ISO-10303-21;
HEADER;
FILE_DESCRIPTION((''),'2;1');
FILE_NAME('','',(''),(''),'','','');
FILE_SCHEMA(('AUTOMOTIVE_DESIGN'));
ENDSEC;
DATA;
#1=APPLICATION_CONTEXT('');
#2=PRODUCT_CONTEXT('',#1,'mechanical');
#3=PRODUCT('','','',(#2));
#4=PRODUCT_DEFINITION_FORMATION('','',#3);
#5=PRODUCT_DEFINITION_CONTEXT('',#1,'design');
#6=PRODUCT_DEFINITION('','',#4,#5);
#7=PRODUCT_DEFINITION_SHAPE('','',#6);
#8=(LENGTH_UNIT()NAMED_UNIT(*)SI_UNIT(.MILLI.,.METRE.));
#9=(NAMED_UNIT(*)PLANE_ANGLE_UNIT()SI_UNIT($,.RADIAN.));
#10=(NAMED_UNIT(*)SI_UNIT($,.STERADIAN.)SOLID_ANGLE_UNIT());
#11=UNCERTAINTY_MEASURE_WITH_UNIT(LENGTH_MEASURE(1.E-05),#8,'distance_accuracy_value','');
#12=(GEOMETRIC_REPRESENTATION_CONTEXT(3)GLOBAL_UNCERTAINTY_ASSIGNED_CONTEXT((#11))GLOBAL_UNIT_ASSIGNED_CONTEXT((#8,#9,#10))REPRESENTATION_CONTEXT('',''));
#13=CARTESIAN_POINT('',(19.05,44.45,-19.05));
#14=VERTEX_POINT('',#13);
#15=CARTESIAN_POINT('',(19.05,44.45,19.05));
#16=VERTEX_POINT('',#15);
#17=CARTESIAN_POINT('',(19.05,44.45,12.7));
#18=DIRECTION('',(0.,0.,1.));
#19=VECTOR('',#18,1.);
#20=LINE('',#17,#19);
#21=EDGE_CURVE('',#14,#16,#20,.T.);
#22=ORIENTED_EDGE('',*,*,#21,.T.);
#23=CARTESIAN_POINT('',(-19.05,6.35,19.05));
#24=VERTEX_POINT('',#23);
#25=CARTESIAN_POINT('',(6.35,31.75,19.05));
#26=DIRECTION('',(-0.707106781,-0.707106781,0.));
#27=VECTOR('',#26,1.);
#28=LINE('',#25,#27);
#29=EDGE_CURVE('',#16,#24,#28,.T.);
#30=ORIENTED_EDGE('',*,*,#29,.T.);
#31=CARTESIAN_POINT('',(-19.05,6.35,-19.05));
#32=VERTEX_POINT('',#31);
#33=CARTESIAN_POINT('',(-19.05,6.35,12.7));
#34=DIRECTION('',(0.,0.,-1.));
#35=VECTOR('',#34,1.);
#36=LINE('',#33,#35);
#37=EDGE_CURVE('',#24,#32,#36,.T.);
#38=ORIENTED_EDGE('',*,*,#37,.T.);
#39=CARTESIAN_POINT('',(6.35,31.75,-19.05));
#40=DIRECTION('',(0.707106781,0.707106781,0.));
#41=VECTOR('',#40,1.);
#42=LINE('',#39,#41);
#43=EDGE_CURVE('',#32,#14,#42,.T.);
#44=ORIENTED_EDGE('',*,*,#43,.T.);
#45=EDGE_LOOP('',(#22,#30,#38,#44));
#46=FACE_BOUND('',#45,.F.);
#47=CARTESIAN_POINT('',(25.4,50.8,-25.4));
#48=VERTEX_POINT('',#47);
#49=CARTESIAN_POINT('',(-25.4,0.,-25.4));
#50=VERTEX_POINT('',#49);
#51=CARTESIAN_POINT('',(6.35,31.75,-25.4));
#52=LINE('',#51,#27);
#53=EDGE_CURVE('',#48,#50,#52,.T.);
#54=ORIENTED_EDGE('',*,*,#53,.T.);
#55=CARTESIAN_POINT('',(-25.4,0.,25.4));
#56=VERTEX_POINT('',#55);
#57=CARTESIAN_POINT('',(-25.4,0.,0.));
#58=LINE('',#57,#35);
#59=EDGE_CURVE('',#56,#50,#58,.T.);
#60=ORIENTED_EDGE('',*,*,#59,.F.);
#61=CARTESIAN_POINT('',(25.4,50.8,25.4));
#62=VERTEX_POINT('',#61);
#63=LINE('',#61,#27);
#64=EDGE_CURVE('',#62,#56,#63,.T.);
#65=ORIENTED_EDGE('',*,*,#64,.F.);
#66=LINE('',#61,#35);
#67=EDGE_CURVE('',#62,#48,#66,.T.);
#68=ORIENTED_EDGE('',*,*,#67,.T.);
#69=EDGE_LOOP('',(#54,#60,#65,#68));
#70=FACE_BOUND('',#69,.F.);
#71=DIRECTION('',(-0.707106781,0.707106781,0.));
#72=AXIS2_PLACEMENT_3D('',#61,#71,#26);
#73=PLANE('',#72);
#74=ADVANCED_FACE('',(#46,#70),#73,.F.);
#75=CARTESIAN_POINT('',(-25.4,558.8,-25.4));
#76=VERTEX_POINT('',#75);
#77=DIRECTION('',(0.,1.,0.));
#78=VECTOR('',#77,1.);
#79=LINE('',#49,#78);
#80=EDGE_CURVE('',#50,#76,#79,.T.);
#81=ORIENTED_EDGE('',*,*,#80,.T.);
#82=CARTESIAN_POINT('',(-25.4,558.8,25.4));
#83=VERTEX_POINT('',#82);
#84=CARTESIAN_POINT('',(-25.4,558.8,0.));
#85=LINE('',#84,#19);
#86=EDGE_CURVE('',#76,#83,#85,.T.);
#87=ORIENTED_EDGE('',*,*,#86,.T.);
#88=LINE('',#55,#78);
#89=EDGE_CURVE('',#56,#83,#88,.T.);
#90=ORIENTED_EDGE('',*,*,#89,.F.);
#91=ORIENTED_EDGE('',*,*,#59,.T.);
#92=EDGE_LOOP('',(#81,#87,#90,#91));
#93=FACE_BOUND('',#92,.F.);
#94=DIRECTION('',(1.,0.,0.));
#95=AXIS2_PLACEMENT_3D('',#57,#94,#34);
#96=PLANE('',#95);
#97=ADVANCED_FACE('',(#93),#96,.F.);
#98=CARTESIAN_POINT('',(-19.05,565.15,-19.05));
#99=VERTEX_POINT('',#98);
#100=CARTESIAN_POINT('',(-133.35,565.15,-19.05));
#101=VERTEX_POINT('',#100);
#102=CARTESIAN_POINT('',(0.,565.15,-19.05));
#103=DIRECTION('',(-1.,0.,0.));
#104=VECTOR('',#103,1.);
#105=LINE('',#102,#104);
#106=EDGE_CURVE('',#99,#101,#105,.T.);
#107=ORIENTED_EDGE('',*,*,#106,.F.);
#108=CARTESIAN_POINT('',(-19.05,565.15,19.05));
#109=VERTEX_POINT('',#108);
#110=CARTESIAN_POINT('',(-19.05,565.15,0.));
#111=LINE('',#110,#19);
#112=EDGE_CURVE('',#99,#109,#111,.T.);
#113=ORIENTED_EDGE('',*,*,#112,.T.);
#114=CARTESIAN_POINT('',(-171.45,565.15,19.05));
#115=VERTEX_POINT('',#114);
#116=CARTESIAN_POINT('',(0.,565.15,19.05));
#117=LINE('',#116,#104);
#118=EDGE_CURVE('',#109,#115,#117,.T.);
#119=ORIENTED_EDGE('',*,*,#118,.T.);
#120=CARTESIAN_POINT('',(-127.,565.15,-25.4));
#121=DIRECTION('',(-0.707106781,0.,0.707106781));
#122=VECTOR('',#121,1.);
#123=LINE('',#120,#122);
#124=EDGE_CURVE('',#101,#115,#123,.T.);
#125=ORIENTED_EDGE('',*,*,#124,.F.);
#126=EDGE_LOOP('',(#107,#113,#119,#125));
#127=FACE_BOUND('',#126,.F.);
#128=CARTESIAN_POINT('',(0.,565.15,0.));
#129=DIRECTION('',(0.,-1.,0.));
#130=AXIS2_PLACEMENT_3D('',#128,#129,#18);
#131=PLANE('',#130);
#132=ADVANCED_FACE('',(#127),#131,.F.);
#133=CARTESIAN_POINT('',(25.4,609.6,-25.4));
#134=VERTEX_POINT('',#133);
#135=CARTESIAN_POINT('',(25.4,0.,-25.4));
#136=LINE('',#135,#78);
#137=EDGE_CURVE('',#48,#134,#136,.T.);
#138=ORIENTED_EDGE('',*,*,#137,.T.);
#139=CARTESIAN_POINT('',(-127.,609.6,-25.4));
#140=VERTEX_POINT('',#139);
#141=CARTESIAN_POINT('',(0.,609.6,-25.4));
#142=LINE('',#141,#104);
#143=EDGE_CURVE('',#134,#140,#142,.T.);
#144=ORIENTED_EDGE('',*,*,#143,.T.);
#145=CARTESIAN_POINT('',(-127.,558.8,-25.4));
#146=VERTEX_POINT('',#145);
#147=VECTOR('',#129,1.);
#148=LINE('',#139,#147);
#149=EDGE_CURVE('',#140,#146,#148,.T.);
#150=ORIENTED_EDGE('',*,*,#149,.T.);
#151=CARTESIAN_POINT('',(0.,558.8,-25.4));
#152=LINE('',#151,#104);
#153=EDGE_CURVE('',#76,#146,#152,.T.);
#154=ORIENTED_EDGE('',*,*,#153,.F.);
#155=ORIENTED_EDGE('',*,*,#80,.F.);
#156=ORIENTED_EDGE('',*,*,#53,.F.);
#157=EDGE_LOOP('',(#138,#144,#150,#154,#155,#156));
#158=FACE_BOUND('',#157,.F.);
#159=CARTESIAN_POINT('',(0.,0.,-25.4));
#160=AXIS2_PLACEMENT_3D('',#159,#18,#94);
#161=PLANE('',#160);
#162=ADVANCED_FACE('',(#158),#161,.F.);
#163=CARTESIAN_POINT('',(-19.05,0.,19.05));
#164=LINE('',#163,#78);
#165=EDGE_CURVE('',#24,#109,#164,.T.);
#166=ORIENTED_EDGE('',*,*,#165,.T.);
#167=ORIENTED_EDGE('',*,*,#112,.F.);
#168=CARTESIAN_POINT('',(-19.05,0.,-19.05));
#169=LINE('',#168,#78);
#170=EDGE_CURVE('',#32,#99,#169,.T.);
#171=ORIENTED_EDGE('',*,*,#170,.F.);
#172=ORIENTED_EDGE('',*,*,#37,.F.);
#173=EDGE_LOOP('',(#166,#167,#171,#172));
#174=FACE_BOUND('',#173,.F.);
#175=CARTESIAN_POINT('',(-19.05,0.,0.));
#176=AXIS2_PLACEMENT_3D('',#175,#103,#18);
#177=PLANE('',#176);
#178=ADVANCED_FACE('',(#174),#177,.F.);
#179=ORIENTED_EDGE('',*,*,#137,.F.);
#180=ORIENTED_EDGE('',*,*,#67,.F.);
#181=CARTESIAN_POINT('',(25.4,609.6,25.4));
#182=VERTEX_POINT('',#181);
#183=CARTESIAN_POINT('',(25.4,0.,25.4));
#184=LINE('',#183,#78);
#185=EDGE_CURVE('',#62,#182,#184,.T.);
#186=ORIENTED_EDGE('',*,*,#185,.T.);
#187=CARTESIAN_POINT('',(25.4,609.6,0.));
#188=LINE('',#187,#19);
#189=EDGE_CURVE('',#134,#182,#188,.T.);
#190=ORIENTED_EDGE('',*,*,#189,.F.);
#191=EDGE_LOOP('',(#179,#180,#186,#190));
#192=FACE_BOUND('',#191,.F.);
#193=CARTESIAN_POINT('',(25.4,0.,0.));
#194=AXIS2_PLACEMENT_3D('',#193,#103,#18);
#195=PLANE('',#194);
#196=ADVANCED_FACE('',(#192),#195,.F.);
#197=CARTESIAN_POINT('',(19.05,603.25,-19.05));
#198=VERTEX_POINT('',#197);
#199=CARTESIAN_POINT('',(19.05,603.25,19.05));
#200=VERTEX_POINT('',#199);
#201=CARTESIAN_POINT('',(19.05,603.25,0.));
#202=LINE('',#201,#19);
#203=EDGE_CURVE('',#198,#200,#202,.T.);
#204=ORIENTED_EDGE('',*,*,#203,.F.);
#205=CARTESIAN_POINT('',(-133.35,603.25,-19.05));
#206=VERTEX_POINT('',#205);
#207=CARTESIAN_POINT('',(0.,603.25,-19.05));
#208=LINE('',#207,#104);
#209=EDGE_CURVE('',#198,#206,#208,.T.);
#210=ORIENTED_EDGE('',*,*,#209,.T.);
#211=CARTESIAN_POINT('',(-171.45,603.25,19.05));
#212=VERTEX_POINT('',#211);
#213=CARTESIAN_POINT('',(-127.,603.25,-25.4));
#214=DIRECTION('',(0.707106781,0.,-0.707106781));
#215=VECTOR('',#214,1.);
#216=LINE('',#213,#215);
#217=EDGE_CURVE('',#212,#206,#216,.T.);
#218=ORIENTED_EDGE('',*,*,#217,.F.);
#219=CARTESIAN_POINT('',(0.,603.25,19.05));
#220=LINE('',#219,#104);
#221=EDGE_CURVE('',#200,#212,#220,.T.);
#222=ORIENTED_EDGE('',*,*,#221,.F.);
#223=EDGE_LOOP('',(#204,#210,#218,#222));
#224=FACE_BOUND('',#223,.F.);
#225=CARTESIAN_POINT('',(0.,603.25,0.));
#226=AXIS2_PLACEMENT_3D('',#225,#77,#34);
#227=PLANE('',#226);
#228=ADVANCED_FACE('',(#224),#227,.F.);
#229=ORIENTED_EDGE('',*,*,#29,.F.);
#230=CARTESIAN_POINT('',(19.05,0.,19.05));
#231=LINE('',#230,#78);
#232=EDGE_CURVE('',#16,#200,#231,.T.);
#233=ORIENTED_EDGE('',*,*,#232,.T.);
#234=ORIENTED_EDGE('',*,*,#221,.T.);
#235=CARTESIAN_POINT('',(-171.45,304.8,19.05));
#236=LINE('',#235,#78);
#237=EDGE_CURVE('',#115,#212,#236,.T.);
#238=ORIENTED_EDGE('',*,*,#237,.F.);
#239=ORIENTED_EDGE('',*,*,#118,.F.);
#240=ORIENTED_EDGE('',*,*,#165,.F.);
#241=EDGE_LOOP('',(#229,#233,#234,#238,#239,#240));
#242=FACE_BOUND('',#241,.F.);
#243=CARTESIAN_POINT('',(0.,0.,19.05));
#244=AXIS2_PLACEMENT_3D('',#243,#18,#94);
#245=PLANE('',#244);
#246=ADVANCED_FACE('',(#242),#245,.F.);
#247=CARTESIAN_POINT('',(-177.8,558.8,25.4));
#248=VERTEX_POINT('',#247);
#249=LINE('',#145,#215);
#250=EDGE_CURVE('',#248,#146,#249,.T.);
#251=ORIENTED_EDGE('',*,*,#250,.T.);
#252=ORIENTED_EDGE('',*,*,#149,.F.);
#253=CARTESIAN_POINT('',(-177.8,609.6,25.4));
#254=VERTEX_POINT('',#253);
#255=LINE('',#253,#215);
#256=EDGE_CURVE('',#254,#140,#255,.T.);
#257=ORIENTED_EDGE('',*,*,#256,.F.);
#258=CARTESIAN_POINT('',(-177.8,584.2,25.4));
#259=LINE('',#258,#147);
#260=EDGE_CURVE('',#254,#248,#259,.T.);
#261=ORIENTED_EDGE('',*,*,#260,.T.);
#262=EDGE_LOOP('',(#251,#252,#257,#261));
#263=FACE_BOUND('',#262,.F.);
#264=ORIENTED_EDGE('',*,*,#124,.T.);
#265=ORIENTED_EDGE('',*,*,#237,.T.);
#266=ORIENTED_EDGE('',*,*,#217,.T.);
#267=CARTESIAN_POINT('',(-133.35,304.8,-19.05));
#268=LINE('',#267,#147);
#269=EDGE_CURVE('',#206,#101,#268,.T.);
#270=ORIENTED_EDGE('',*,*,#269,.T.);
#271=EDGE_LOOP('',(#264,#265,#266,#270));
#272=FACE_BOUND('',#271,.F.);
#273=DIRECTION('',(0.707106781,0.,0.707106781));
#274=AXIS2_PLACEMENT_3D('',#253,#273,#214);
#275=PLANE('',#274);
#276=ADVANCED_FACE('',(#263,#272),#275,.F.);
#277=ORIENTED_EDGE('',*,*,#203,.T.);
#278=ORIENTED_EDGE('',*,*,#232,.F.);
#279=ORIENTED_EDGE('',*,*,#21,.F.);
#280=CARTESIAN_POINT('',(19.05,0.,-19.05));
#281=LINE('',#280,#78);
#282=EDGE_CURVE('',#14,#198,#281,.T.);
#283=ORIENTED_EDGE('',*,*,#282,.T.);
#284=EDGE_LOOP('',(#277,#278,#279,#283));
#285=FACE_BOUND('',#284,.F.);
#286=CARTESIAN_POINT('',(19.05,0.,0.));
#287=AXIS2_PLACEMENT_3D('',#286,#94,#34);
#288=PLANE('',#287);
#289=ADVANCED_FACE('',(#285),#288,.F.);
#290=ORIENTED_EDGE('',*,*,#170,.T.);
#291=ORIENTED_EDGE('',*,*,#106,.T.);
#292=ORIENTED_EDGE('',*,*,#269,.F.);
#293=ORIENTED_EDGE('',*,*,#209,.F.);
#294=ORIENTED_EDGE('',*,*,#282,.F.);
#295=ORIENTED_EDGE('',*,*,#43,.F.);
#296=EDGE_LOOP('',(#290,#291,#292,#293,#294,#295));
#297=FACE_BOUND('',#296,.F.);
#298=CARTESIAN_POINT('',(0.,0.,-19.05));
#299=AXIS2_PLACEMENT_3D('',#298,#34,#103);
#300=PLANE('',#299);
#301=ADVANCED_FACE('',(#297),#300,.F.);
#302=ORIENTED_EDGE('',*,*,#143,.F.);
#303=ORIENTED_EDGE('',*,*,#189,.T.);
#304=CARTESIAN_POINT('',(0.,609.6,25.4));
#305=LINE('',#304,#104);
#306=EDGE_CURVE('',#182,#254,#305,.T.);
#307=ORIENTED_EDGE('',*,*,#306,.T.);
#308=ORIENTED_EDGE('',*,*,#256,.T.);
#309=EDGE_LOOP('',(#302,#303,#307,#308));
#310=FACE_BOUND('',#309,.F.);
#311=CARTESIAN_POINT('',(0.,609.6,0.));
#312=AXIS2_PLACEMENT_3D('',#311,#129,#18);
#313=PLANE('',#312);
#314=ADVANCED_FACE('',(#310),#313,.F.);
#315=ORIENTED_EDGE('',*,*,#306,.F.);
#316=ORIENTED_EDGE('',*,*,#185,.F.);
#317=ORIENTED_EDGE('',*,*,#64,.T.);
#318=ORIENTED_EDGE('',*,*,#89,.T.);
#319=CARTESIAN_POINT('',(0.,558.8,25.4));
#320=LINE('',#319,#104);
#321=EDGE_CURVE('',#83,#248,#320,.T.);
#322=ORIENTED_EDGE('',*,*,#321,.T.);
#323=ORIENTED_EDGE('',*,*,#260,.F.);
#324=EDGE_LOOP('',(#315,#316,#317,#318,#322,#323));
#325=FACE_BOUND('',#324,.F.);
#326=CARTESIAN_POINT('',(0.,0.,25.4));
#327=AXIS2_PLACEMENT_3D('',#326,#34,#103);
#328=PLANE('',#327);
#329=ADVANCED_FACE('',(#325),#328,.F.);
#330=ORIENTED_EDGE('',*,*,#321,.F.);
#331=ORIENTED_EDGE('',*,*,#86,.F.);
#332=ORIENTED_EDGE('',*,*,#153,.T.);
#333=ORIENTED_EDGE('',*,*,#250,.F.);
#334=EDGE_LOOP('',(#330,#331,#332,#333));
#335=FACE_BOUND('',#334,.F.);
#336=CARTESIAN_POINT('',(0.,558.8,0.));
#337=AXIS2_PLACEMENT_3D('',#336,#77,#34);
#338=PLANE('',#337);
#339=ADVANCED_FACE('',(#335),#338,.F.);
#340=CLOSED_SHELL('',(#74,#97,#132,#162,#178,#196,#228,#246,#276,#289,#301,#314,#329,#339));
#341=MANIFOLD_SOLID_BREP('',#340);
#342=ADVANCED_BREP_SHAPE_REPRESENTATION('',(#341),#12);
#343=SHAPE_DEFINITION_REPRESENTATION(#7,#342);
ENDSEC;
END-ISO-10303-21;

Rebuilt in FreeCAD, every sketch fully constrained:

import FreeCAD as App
import Part
import Sketcher
from FreeCAD import Vector
Q = App.Units.Quantity

doc = App.newDocument("Part")
body = doc.addObject("PartDesign::Body", "Body")

# Sketch on XZ plane
sketch1 = doc.addObject("Sketcher::SketchObject", "Sketch")
body.addObject(sketch1)
sketch1.AttachmentSupport = (doc.XZ_Plane, [""])
sketch1.MapMode = "FlatFace"
sketch1.addGeometry(Part.LineSegment(Vector(-25, 25, 0), Vector(-25, -25, 0)), False)
sketch1.addGeometry(Part.LineSegment(Vector(-25, -25, 0), Vector(25, -25, 0)), False)
sketch1.addGeometry(Part.LineSegment(Vector(25, -25, 0), Vector(25, 25, 0)), False)
sketch1.addGeometry(Part.LineSegment(Vector(25, 25, 0), Vector(-25, 25, 0)), False)
sketch1.addGeometry(Part.LineSegment(Vector(19, -19, 0), Vector(-19, -19, 0)), False)
sketch1.addGeometry(Part.LineSegment(Vector(-19, -19, 0), Vector(-19, 19, 0)), False)
sketch1.addGeometry(Part.LineSegment(Vector(-19, 19, 0), Vector(19, 19, 0)), False)
sketch1.addGeometry(Part.LineSegment(Vector(19, 19, 0), Vector(19, -19, 0)), False)
sketch1.addConstraint(Sketcher.Constraint("Coincident", 0, 2, 1, 1))
sketch1.addConstraint(Sketcher.Constraint("Coincident", 1, 2, 2, 1))
sketch1.addConstraint(Sketcher.Constraint("Coincident", 2, 2, 3, 1))
sketch1.addConstraint(Sketcher.Constraint("Coincident", 3, 2, 0, 1))
sketch1.addConstraint(Sketcher.Constraint("Coincident", 4, 2, 5, 1))
sketch1.addConstraint(Sketcher.Constraint("Coincident", 5, 2, 6, 1))
sketch1.addConstraint(Sketcher.Constraint("Coincident", 6, 2, 7, 1))
sketch1.addConstraint(Sketcher.Constraint("Coincident", 7, 2, 4, 1))
sketch1.addConstraint(Sketcher.Constraint("Vertical", 0))
sketch1.addConstraint(Sketcher.Constraint("Horizontal", 1))
sketch1.addConstraint(Sketcher.Constraint("Vertical", 2))
sketch1.addConstraint(Sketcher.Constraint("Horizontal", 3))
sketch1.addConstraint(Sketcher.Constraint("Horizontal", 4))
sketch1.addConstraint(Sketcher.Constraint("Vertical", 5))
sketch1.addConstraint(Sketcher.Constraint("Horizontal", 6))
sketch1.addConstraint(Sketcher.Constraint("Vertical", 7))
sketch1.addConstraint(Sketcher.Constraint("Symmetric", 0, 2, 2, 2, -1, 1))
sketch1.addConstraint(Sketcher.Constraint("Symmetric", 4, 2, 6, 2, -1, 1))
sketch1.addConstraint(Sketcher.Constraint("Equal", 3, 0))
sketch1.addConstraint(Sketcher.Constraint("Equal", 6, 5))
sketch1.addConstraint(Sketcher.Constraint("DistanceX", 1, 1, 1, 2, Q("2 in")))
sketch1.addConstraint(Sketcher.Constraint("DistanceX", 4, 2, 4, 1, Q("1.5 in")))

# Sketch on XY plane
sketch2 = doc.addObject("Sketcher::SketchObject", "Sketch001")
body.addObject(sketch2)
sketch2.AttachmentSupport = (doc.XY_Plane, [""])
sketch2.MapMode = "FlatFace"
sketch2.addGeometry(Part.LineSegment(Vector(0, 0, 0), Vector(0, 584, 0)), False)
sketch2.addGeometry(Part.LineSegment(Vector(0, 584, 0), Vector(-178, 584, 0)), False)
sketch2.addConstraint(Sketcher.Constraint("Coincident", 0, 2, 1, 1))
sketch2.addConstraint(Sketcher.Constraint("Vertical", 0))
sketch2.addConstraint(Sketcher.Constraint("Horizontal", 1))
sketch2.addConstraint(Sketcher.Constraint("Coincident", 0, 1, -1, 1))
sketch2.addConstraint(Sketcher.Constraint("DistanceX", 1, 2, 1, 1, Q("7 in")))
sketch2.addConstraint(Sketcher.Constraint("DistanceY", 0, 1, 0, 2, Q("23 in")))
doc.recompute()

additivepipe = doc.addObject("PartDesign::AdditivePipe", "AdditivePipe")
body.addObject(additivepipe)
additivepipe.Profile = sketch1
additivepipe.Spine = (sketch2, ["Edge1", "Edge2"])
additivepipe.Transition = "Right corner"

# Sketch on XY plane
sketch3 = doc.addObject("Sketcher::SketchObject", "Sketch002")
body.addObject(sketch3)
sketch3.AttachmentSupport = (doc.XY_Plane, [""])
sketch3.MapMode = "FlatFace"
sketch3.AttachmentOffset = App.Placement(Vector(0, 0, 1 * 25.4), App.Rotation())
sketch3.addGeometry(Part.LineSegment(Vector(-25, 0, 0), Vector(25, 0, 0)), False)
sketch3.addGeometry(Part.LineSegment(Vector(25, 0, 0), Vector(25, 51, 0)), False)
sketch3.addGeometry(Part.LineSegment(Vector(25, 51, 0), Vector(-25, 0, 0)), False)
sketch3.addConstraint(Sketcher.Constraint("Coincident", 0, 2, 1, 1))
sketch3.addConstraint(Sketcher.Constraint("Coincident", 1, 2, 2, 1))
sketch3.addConstraint(Sketcher.Constraint("Coincident", 2, 2, 0, 1))
sketch3.addConstraint(Sketcher.Constraint("Horizontal", 0))
sketch3.addConstraint(Sketcher.Constraint("Vertical", 1))
sketch3.addConstraint(Sketcher.Constraint("Symmetric", 0, 2, 2, 2, -1, 1))
sketch3.addConstraint(Sketcher.Constraint("Equal", 0, 1))
sketch3.addConstraint(Sketcher.Constraint("DistanceX", 0, 1, 0, 2, Q("2 in")))
pocket1 = doc.addObject("PartDesign::Pocket", "Pocket")
body.addObject(pocket1)
pocket1.Profile = sketch3
pocket1.Type = "ThroughAll"

# Sketch on XZ plane
sketch4 = doc.addObject("Sketcher::SketchObject", "Sketch003")
body.addObject(sketch4)
sketch4.AttachmentSupport = (doc.XZ_Plane, [""])
sketch4.MapMode = "FlatFace"
sketch4.AttachmentOffset = App.Placement(Vector(0, 0, -24 * 25.4), App.Rotation())
sketch4.addGeometry(Part.LineSegment(Vector(-178, -25, 0), Vector(-178, 25, 0)), False)
sketch4.addGeometry(Part.LineSegment(Vector(-178, 25, 0), Vector(-127, -25, 0)), False)
sketch4.addGeometry(Part.LineSegment(Vector(-127, -25, 0), Vector(-178, -25, 0)), False)
sketch4.addConstraint(Sketcher.Constraint("Coincident", 0, 2, 1, 1))
sketch4.addConstraint(Sketcher.Constraint("Coincident", 1, 2, 2, 1))
sketch4.addConstraint(Sketcher.Constraint("Coincident", 2, 2, 0, 1))
sketch4.addConstraint(Sketcher.Constraint("Vertical", 0))
sketch4.addConstraint(Sketcher.Constraint("Horizontal", 2))
sketch4.addConstraint(Sketcher.Constraint("Equal", 2, 0))
sketch4.addConstraint(Sketcher.Constraint("DistanceX", 2, 2, 2, 1, Q("2 in")))
sketch4.addConstraint(Sketcher.Constraint("DistanceX", 0, 2, -1, 1, Q("7 in")))
sketch4.addConstraint(Sketcher.Constraint("DistanceY", -1, 1, 0, 2, Q("1 in")))
pocket2 = doc.addObject("PartDesign::Pocket", "Pocket001")
body.addObject(pocket2)
pocket2.Profile = sketch4
pocket2.Type = "ThroughAll"
pocket2.Reversed = True

doc.recompute()
